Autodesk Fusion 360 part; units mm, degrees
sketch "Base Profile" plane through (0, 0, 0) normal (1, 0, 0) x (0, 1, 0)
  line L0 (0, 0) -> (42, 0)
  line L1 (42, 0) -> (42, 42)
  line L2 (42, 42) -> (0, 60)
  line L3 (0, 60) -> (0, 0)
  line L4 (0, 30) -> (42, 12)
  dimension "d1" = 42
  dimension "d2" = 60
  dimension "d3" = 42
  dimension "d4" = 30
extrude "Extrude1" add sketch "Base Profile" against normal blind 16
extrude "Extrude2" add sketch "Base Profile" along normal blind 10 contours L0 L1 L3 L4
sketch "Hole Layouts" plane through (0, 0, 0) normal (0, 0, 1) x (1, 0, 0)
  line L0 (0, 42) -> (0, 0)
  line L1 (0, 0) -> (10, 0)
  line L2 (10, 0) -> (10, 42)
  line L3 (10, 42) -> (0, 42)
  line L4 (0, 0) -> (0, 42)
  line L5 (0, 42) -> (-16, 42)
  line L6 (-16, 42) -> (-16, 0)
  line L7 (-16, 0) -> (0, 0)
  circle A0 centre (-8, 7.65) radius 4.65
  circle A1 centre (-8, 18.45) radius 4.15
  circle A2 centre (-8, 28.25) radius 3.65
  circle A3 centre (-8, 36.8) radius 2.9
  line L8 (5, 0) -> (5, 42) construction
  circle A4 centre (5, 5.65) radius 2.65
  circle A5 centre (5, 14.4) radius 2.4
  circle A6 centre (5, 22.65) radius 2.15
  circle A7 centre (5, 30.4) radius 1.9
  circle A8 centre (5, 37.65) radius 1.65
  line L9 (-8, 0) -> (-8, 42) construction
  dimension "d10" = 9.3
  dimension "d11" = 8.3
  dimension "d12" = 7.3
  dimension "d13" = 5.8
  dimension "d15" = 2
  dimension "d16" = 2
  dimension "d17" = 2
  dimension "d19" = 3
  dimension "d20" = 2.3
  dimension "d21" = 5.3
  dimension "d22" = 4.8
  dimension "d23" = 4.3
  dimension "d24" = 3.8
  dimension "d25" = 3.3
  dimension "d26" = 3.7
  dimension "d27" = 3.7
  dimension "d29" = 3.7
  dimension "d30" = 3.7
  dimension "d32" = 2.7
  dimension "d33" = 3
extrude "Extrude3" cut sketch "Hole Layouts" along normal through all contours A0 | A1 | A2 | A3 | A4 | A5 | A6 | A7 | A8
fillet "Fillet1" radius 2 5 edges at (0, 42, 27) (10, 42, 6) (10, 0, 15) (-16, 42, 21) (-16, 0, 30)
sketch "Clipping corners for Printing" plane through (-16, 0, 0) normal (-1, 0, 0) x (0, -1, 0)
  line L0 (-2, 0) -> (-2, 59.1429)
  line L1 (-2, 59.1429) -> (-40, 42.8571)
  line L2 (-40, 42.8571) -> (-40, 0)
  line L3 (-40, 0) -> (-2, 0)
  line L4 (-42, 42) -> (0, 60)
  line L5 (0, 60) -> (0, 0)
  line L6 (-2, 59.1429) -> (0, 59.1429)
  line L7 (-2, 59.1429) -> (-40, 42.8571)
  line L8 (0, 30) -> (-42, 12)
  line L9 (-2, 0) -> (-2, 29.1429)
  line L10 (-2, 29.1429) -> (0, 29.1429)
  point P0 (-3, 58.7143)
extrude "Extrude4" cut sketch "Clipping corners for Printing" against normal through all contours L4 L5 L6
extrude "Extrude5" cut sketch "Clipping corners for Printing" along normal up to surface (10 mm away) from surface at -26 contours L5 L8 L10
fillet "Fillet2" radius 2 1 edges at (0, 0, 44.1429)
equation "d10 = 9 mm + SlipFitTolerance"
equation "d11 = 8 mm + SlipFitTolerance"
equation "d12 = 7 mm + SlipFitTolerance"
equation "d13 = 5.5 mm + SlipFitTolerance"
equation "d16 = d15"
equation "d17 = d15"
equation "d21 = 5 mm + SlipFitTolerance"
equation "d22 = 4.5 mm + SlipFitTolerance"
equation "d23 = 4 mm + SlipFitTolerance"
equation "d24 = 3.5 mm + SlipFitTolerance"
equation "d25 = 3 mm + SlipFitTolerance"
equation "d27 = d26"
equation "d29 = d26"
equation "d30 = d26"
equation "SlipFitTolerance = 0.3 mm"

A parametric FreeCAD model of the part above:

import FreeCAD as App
import Part
import Sketcher
Q = App.Units.Quantity


def edges_at(feature, points):
    """Names of the edges that pass closest to the given points."""
    edges = feature.Shape.Edges
    near = lambda p: min(range(len(edges)), key=lambda i: edges[i].distToShape(Part.Vertex(*p))[0])
    return sorted({f"Edge{near(p) + 1}" for p in points})

doc = App.newDocument("Part")
body = doc.addObject("PartDesign::Body", "Body")

sketch1 = body.newObject("Sketcher::SketchObject", "Sketch")
sketch1.AttachmentSupport = (doc.getObject("YZ_Plane"), [""])
sketch1.MapMode = "FlatFace"
sketch1.addGeometry([
    Part.LineSegment(App.Vector(0, 0, 0), App.Vector(42, 0, 0)),
    Part.LineSegment(App.Vector(42, 0, 0), App.Vector(42, 42, 0)),
    Part.LineSegment(App.Vector(42, 42, 0), App.Vector(0, 60, 0)),
    Part.LineSegment(App.Vector(0, 60, 0), App.Vector(0, 0, 0)),
], False)
sketch1.addConstraint([
    Sketcher.Constraint("Coincident", 0, 2, 1, 1),
    Sketcher.Constraint("Coincident", 1, 2, 2, 1),
    Sketcher.Constraint("Coincident", 2, 2, 3, 1),
    Sketcher.Constraint("Coincident", 3, 2, 0, 1),
    Sketcher.Constraint("Horizontal", 0),
    Sketcher.Constraint("Vertical", 1),
    Sketcher.Constraint("Vertical", 3),
    Sketcher.Constraint("Coincident", 3, 2, -1, 1),
    Sketcher.Constraint("Equal", 0, 1),
    Sketcher.Constraint("DistanceX", 0, 1, 0, 2, Q("42 mm")),
    Sketcher.Constraint("DistanceY", 3, 2, 3, 1, Q("60 mm")),
])
pad1 = body.newObject("PartDesign::Pad", "Pad")
pad1.Profile = sketch1
pad1.Length = 16
pad1.Reversed = True

sketch2 = body.newObject("Sketcher::SketchObject", "Sketch001")
sketch2.AttachmentSupport = (doc.getObject("YZ_Plane"), [""])
sketch2.MapMode = "FlatFace"
sketch2.addGeometry([
    Part.LineSegment(App.Vector(0, 30, 0), App.Vector(0, 0, 0)),
    Part.LineSegment(App.Vector(0, 0, 0), App.Vector(42, 0, 0)),
    Part.LineSegment(App.Vector(42, 0, 0), App.Vector(42, 12, 0)),
    Part.LineSegment(App.Vector(42, 12, 0), App.Vector(0, 30, 0)),
], False)
sketch2.addConstraint([
    Sketcher.Constraint("Coincident", 0, 2, 1, 1),
    Sketcher.Constraint("Coincident", 1, 2, 2, 1),
    Sketcher.Constraint("Coincident", 2, 2, 3, 1),
    Sketcher.Constraint("Coincident", 3, 2, 0, 1),
    Sketcher.Constraint("Vertical", 0),
    Sketcher.Constraint("Horizontal", 1),
    Sketcher.Constraint("Vertical", 2),
    Sketcher.Constraint("Coincident", 0, 2, -1, 1),
    Sketcher.Constraint("DistanceX", 1, 1, 1, 2, Q("42 mm")),
    Sketcher.Constraint("DistanceY", 0, 2, 0, 1, Q("30 mm")),
    Sketcher.Constraint("DistanceY", 2, 1, 2, 2, Q("12 mm")),
])
pad2 = body.newObject("PartDesign::Pad", "Pad001")
pad2.Profile = sketch2
pad2.Length = 10

sketch3 = body.newObject("Sketcher::SketchObject", "Sketch002")
sketch3.AttachmentSupport = (doc.getObject("XY_Plane"), [""])
sketch3.MapMode = "FlatFace"
sketch3.addGeometry([
    Part.Circle(App.Vector(-8, 7.7, 0), App.Vector(0, 0, 1), 4.7),
    Part.Circle(App.Vector(-8, 18.4, 0), App.Vector(0, 0, 1), 4.2),
    Part.Circle(App.Vector(-8, 28.2, 0), App.Vector(0, 0, 1), 3.6),
    Part.Circle(App.Vector(-8, 36.8, 0), App.Vector(0, 0, 1), 2.9),
    Part.Circle(App.Vector(5, 5.7, 0), App.Vector(0, 0, 1), 2.6),
    Part.Circle(App.Vector(5, 14.4, 0), App.Vector(0, 0, 1), 2.4),
    Part.Circle(App.Vector(5, 22.6, 0), App.Vector(0, 0, 1), 2.1),
    Part.Circle(App.Vector(5, 30.4, 0), App.Vector(0, 0, 1), 1.9),
    Part.Circle(App.Vector(5, 37.6, 0), App.Vector(0, 0, 1), 1.6),
], False)
sketch3.addConstraint([
    Sketcher.Constraint("Vertical", 0, 3, 1, 3),
    Sketcher.Constraint("Vertical", 1, 3, 2, 3),
    Sketcher.Constraint("Vertical", 2, 3, 3, 3),
    Sketcher.Constraint("Vertical", 4, 3, 5, 3),
    Sketcher.Constraint("Vertical", 5, 3, 6, 3),
    Sketcher.Constraint("Vertical", 6, 3, 7, 3),
    Sketcher.Constraint("Vertical", 7, 3, 8, 3),
    Sketcher.Constraint("Diameter", 0, Q("9.3 mm")),
    Sketcher.Constraint("Diameter", 1, Q("8.3 mm")),
    Sketcher.Constraint("Diameter", 2, Q("7.3 mm")),
    Sketcher.Constraint("Diameter", 3, Q("5.8 mm")),
    Sketcher.Constraint("Diameter", 4, Q("5.3 mm")),
    Sketcher.Constraint("Diameter", 5, Q("4.8 mm")),
    Sketcher.Constraint("Diameter", 6, Q("4.3 mm")),
    Sketcher.Constraint("Diameter", 7, Q("3.8 mm")),
    Sketcher.Constraint("Diameter", 8, Q("3.3 mm")),
    Sketcher.Constraint("DistanceY", 4, 3, 0, 3, Q("2 mm")),
    Sketcher.Constraint("DistanceX", 0, 3, -1, 1, Q("8 mm")),
    Sketcher.Constraint("DistanceX", -1, 1, 4, 3, Q("5 mm")),
    Sketcher.Constraint("DistanceY", 4, 3, 6, 3, Q("17 mm")),
    Sketcher.Constraint("DistanceY", 5, 3, 7, 3, Q("16 mm")),
    Sketcher.Constraint("DistanceY", 6, 3, 8, 3, Q("15 mm")),
    Sketcher.Constraint("DistanceY", -1, 1, 3, 3, Q("36.8 mm")),
    Sketcher.Constraint("DistanceY", -1, 1, 5, 3, Q("14.4 mm")),
    Sketcher.Constraint("DistanceY", 0, 3, 1, 3, Q("10.8 mm")),
    Sketcher.Constraint("DistanceY", 1, 3, 2, 3, Q("9.8 mm")),
    Sketcher.Constraint("DistanceY", -1, 1, 0, 3, Q("7.65 mm")),
])
pocket1 = body.newObject("PartDesign::Pocket", "Pocket")
pocket1.Profile = sketch3
pocket1.Type = "ThroughAll"
pocket1.Reversed = True
doc.recompute()

fillet = body.newObject("PartDesign::Fillet", "Fillet")
fillet.Base = (pocket1, edges_at(pocket1, [
    (0, 42, 27),
    (10, 42, 6),
    (10, 0, 15),
    (-16, 42, 21),
    (-16, 0, 30),
]))
fillet.Radius = 2

sketch4 = body.newObject("Sketcher::SketchObject", "Sketch003")
sketch4.AttachmentSupport = (doc.getObject("YZ_Plane"), [""])
sketch4.MapMode = "FlatFace"
sketch4.AttachmentOffset = App.Placement(App.Vector(0, 0, -16), App.Rotation())
sketch4.addGeometry([
    Part.LineSegment(App.Vector(0, 60, 0), App.Vector(2, 59.1, 0)),
    Part.LineSegment(App.Vector(2, 59.1, 0), App.Vector(0, 59.1, 0)),
    Part.LineSegment(App.Vector(0, 59.1, 0), App.Vector(0, 60, 0)),
], False)
sketch4.addConstraint([
    Sketcher.Constraint("Coincident", 0, 2, 1, 1),
    Sketcher.Constraint("Coincident", 1, 2, 2, 1),
    Sketcher.Constraint("Coincident", 2, 2, 0, 1),
    Sketcher.Constraint("Horizontal", 1),
    Sketcher.Constraint("Vertical", 2),
    Sketcher.Constraint("PointOnObject", 1, 2, -2),
    Sketcher.Constraint("DistanceX", 1, 2, 1, 1, Q("2 mm")),
    Sketcher.Constraint("DistanceY", -1, 1, 2, 2, Q("60 mm")),
    Sketcher.Constraint("DistanceY", 2, 1, 2, 2, Q("0.857 mm")),
])
pocket2 = body.newObject("PartDesign::Pocket", "Pocket001")
pocket2.Profile = sketch4
pocket2.Type = "ThroughAll"
pocket2.Reversed = True

sketch5 = body.newObject("Sketcher::SketchObject", "Sketch004")
sketch5.AttachmentSupport = (doc.getObject("YZ_Plane"), [""])
sketch5.MapMode = "FlatFace"
sketch5.AttachmentOffset = App.Placement(App.Vector(0, 0, 10), App.Rotation())
sketch5.addGeometry([
    Part.LineSegment(App.Vector(0, 30, 0), App.Vector(2, 29.1, 0)),
    Part.LineSegment(App.Vector(2, 29.1, 0), App.Vector(0, 29.1, 0)),
    Part.LineSegment(App.Vector(0, 29.1, 0), App.Vector(0, 30, 0)),
], False)
sketch5.addConstraint([
    Sketcher.Constraint("Coincident", 0, 2, 1, 1),
    Sketcher.Constraint("Coincident", 1, 2, 2, 1),
    Sketcher.Constraint("Coincident", 2, 2, 0, 1),
    Sketcher.Constraint("Horizontal", 1),
    Sketcher.Constraint("Vertical", 2),
    Sketcher.Constraint("PointOnObject", 1, 2, -2),
    Sketcher.Constraint("DistanceX", 1, 2, 1, 1, Q("2 mm")),
    Sketcher.Constraint("DistanceY", -1, 1, 2, 2, Q("30 mm")),
    Sketcher.Constraint("DistanceY", 2, 1, 2, 2, Q("0.857 mm")),
])
pocket3 = body.newObject("PartDesign::Pocket", "Pocket002")
pocket3.Profile = sketch5
pocket3.Length = 10
doc.recompute()

fillet2 = body.newObject("PartDesign::Fillet", "Fillet001")
fillet2.Base = (pocket3, edges_at(pocket3, [(0, 0, 44.143)]))
fillet2.Radius = 2

doc.recompute()
